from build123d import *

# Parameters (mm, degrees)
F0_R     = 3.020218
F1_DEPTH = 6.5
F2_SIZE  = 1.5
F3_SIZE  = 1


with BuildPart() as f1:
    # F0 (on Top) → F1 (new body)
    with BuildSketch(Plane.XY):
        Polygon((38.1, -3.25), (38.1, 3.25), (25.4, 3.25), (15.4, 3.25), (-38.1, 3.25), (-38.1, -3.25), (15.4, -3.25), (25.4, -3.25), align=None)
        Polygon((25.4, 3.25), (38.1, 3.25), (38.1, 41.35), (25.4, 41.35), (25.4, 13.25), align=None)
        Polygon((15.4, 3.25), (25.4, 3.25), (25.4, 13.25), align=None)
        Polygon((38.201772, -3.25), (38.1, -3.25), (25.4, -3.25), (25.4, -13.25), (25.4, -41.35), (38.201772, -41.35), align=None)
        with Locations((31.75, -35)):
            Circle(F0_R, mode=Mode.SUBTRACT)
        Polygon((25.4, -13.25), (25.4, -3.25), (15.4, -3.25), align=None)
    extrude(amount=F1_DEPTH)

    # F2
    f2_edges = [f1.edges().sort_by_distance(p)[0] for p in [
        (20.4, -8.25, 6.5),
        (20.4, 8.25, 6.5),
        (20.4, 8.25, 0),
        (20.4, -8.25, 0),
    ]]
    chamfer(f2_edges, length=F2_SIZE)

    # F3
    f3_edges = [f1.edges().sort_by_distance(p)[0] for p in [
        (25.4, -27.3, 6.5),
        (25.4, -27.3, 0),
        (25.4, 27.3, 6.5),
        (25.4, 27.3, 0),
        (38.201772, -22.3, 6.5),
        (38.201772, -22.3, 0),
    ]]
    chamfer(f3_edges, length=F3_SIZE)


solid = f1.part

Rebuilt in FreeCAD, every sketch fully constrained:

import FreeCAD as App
import Part
import Sketcher


def edges_at(feature, points):
    """Names of the edges that pass closest to the given points."""
    edges = feature.Shape.Edges
    near = lambda p: min(range(len(edges)), key=lambda i: edges[i].distToShape(Part.Vertex(*p))[0])
    return sorted({f"Edge{near(p) + 1}" for p in points})


def add_polygon(sketch, points):
    """Adds a closed chain of lines whose ends are joined by coincident constraints."""
    first, n = sketch.GeometryCount, len(points)
    for a, b in zip(points, points[1:] + points[:1]):
        sketch.addGeometry(Part.LineSegment(App.Vector(*a, 0), App.Vector(*b, 0)), False)
    for i in range(n):
        sketch.addConstraint(Sketcher.Constraint("Coincident", first + i, 2, first + (i + 1) % n, 1))

doc = App.newDocument("Part")
body = doc.addObject("PartDesign::Body", "Body")

# Sketch on XY plane
sketch1 = body.newObject("Sketcher::SketchObject", "Sketch")
sketch1.AttachmentSupport = (doc.getObject("XY_Plane"), [""])
sketch1.MapMode = "FlatFace"
add_polygon(sketch1, [(38.1, -3.25), (38.1, 41.35), (25.4, 41.35), (25.4, 13.25), (15.4, 3.25), (-38.1, 3.25), (-38.1, -3.25), (15.4, -3.25), (25.4, -13.25), (25.4, -41.35), (38.2, -41.35), (38.2, -3.25)])  # lines 0-11
sketch1.addGeometry(Part.Circle(App.Vector(31.75, -35, 0), App.Vector(0, 0, 1), 3.02), False)  # 12
sketch1.addConstraint([
    Sketcher.Constraint("Vertical", 0),
    Sketcher.Constraint("Horizontal", 1),
    Sketcher.Constraint("Vertical", 2),
    Sketcher.Constraint("Horizontal", 4),
    Sketcher.Constraint("Vertical", 5),
    Sketcher.Constraint("Horizontal", 6),
    Sketcher.Constraint("Vertical", 8),
    Sketcher.Constraint("Horizontal", 9),
    Sketcher.Constraint("Vertical", 10),
    Sketcher.Constraint("Horizontal", 11),
    Sketcher.Constraint("Symmetric", 4, 2, 11, 2, -1, 1),
    Sketcher.Constraint("Symmetric", 3, 2, 6, 2, -1),
    Sketcher.Constraint("Symmetric", 2, 2, 7, 2, -1),
    Sketcher.Constraint("Perpendicular", 3, 7),
    Sketcher.Constraint("Equal", 2, 8),
    Sketcher.Constraint("DistanceX", 1, 2, 1, 1, 12.7),
    Sketcher.Constraint("DistanceX", 4, 2, 4, 1, 53.5),
    Sketcher.Constraint("DistanceY", 0, 1, 0, 2, 44.6),
    Sketcher.Constraint("DistanceY", 2, 2, 2, 1, 28.1),
    Sketcher.Constraint("DistanceY", 5, 2, 5, 1, 6.5),
    Sketcher.Constraint("DistanceY", 12, 3, -1, 1, 35.0),
    Sketcher.Constraint("DistanceX", -1, 1, 12, 3, 31.75),
    Sketcher.Constraint("Diameter", 12, 6.040436),
    Sketcher.Constraint("DistanceX", 11, 2, 11, 1, 0.101772),
])
pad1 = body.newObject("PartDesign::Pad", "Pad")
pad1.Profile = sketch1
pad1.Length = 6.5
doc.recompute()

chamfer = body.newObject("PartDesign::Chamfer", "Chamfer")
chamfer.Base = (pad1, edges_at(pad1, [
    (20.4, -8.25, 6.5),
    (20.4, 8.25, 6.5),
    (20.4, 8.25, 0),
    (20.4, -8.25, 0),
]))
chamfer.Size = 1.5
doc.recompute()

chamfer2 = body.newObject("PartDesign::Chamfer", "Chamfer001")
chamfer2.Base = (chamfer, edges_at(chamfer, [
    (25.4, -26.239, 6.5),
    (25.4, -26.239, 0),
    (25.4, 26.239, 6.5),
    (25.4, 26.239, 0),
    (38.202, -22.3, 6.5),
    (38.202, -22.3, 0),
]))
chamfer2.Size = 1

doc.recompute()
